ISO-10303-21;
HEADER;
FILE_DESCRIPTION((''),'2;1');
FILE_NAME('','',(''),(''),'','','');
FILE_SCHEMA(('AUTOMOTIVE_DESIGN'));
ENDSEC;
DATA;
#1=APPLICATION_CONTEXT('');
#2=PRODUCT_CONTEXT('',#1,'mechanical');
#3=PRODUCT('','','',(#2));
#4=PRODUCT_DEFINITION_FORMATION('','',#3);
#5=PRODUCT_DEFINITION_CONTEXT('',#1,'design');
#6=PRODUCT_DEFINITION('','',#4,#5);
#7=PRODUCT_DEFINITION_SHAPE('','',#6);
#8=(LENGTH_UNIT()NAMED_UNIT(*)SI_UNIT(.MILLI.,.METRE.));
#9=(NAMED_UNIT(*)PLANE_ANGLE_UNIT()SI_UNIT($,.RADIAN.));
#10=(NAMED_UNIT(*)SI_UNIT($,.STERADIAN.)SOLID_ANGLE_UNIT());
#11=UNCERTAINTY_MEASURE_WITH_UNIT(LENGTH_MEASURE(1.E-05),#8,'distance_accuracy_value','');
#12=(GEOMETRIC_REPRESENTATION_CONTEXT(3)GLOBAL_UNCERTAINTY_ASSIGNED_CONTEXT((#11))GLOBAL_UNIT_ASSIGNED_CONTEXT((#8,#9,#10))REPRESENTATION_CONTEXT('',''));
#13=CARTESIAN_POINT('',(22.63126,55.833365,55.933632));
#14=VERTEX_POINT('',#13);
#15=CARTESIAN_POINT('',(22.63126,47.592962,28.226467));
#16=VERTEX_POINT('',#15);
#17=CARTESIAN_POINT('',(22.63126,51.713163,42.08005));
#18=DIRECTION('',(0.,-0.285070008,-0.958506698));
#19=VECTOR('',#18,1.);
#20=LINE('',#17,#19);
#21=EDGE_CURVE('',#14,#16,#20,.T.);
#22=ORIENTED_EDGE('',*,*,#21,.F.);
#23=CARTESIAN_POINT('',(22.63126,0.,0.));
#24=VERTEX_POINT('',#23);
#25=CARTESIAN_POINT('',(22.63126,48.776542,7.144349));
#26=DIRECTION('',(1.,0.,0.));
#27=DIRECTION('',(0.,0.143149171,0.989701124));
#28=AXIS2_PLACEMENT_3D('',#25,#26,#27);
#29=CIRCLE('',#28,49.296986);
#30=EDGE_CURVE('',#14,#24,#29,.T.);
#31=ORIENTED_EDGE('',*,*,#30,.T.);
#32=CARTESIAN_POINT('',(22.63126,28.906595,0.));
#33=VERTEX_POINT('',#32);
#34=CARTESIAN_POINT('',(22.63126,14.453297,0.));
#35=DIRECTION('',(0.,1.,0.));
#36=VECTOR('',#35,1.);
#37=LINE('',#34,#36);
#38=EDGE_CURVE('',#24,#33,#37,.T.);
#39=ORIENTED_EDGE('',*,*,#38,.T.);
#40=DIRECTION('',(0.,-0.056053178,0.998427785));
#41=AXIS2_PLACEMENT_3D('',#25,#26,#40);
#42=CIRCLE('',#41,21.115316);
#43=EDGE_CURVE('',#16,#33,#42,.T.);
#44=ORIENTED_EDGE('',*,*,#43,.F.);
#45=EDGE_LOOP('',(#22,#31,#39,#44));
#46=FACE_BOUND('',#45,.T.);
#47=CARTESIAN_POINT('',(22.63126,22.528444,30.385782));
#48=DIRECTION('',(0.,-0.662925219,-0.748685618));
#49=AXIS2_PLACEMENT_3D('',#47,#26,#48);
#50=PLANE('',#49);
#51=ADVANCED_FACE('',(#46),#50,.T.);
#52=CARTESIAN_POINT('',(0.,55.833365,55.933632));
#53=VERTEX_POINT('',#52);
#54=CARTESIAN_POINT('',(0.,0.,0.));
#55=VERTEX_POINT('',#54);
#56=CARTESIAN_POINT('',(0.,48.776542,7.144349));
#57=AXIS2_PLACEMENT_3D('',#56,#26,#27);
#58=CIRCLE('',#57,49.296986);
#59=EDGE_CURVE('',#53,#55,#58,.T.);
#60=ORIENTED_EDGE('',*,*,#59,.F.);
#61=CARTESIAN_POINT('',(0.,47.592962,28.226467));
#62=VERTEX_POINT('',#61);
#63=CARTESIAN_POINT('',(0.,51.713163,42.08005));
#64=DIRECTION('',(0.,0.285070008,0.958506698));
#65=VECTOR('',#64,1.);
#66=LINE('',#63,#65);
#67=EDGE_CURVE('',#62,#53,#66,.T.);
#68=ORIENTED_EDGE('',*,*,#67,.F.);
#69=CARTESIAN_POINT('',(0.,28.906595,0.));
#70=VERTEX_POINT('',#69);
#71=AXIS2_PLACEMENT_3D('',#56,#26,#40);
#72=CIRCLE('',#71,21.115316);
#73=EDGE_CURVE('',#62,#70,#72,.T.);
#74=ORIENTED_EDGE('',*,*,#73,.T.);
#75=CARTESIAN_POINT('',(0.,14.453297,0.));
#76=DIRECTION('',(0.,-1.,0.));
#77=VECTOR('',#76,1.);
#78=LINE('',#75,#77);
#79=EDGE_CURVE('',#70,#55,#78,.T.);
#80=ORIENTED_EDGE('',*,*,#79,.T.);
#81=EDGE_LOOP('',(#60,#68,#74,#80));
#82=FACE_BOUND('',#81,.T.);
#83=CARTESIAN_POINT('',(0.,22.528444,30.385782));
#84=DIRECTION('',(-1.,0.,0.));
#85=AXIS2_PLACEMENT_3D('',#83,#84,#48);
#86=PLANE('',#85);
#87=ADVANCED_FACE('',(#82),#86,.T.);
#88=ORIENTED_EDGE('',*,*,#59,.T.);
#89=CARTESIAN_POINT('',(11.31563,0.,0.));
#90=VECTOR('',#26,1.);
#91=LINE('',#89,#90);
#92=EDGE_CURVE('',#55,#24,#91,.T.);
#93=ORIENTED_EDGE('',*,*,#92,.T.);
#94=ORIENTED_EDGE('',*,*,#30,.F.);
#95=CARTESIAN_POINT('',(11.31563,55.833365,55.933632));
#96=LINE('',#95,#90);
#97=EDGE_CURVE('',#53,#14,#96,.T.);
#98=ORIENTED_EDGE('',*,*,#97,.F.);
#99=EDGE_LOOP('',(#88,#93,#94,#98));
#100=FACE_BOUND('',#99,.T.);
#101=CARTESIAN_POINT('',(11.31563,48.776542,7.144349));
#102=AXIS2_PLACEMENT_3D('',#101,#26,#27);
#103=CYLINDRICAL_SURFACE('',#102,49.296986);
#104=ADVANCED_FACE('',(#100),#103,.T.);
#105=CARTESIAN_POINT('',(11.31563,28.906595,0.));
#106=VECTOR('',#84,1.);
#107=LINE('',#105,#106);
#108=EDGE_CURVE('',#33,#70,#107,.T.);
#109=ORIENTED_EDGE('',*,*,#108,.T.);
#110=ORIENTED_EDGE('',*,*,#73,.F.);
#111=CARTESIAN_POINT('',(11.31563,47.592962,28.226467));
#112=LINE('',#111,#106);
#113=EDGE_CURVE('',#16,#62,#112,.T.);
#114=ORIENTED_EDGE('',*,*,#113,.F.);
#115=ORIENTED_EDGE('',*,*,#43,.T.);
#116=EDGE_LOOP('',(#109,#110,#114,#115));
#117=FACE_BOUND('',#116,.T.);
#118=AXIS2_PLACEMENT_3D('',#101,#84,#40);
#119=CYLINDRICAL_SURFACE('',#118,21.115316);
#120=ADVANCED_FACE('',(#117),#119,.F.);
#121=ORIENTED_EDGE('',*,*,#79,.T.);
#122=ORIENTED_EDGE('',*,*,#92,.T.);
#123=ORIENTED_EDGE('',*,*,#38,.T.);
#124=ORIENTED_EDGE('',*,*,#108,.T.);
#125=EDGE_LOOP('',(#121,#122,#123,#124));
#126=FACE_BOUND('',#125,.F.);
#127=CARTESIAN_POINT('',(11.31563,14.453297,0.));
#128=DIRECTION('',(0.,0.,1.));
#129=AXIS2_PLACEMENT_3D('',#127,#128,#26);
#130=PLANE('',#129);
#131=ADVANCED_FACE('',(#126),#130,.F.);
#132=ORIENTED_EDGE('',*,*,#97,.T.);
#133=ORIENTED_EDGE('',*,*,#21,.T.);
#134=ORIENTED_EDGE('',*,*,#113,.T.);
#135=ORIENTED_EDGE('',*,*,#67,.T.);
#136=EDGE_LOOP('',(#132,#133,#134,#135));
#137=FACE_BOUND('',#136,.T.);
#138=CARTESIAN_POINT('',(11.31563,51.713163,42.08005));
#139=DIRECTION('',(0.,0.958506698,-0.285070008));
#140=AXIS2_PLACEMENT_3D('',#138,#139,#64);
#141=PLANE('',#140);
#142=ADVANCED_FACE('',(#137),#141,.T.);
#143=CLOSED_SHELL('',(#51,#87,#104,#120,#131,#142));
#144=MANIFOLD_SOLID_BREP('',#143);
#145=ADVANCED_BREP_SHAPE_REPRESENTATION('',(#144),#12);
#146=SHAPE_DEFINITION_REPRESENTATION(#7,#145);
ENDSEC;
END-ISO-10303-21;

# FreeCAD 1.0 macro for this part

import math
import FreeCAD as App
import Part
import Sketcher
from FreeCAD import Vector


def add_polygon(sketch, points):
    """Adds a closed chain of lines whose ends are joined by coincident constraints."""
    first, n = sketch.GeometryCount, len(points)
    for a, b in zip(points, points[1:] + points[:1]):
        sketch.addGeometry(Part.LineSegment(App.Vector(*a, 0), App.Vector(*b, 0)), False)
    for i in range(n):
        sketch.addConstraint(Sketcher.Constraint("Coincident", first + i, 2, first + (i + 1) % n, 1))

doc = App.newDocument("Part")
body = doc.addObject("PartDesign::Body", "Body")

# Sketch on XY plane
sketch1 = doc.addObject("Sketcher::SketchObject", "Sketch")
body.addObject(sketch1)
sketch1.AttachmentSupport = (doc.XY_Plane, [""])
sketch1.MapMode = "FlatFace"
add_polygon(sketch1, [(0, 29), (0, 0), (23, 0), (23, 29)])  # lines 0-3
sketch1.addConstraint(Sketcher.Constraint("Vertical", 0))
sketch1.addConstraint(Sketcher.Constraint("Horizontal", 1))
sketch1.addConstraint(Sketcher.Constraint("Vertical", 2))
sketch1.addConstraint(Sketcher.Constraint("Horizontal", 3))
sketch1.addConstraint(Sketcher.Constraint("Coincident", 0, 2, -1, 1))
sketch1.addConstraint(Sketcher.Constraint("DistanceX", 1, 1, 1, 2, 22.631261))
sketch1.addConstraint(Sketcher.Constraint("DistanceY", 0, 2, 0, 1, 28.906595))

# Sketch on YZ plane
sketch2 = doc.addObject("Sketcher::SketchObject", "Sketch001")
body.addObject(sketch2)
sketch2.AttachmentSupport = (doc.YZ_Plane, [""])
sketch2.MapMode = "FlatFace"
sketch2.addGeometry(Part.ArcOfCircle(Part.Circle(Vector(49, 7, 0), Vector(0, 0, 1), 28), math.radians(88), math.radians(195)), False)
sketch2.addConstraint(Sketcher.Constraint("PointOnObject", 0, 2, -1))
sketch2.addConstraint(Sketcher.Constraint("Radius", 0, 27.79778))
sketch2.addConstraint(Sketcher.Constraint("DistanceY", -1, 1, 0, 3, 7.144349))
sketch2.addConstraint(Sketcher.Constraint("DistanceY", -1, 1, 0, 1, 34.930319))
sketch2.addConstraint(Sketcher.Constraint("DistanceX", -1, 1, 0, 3, 48.776542))
doc.recompute()

additivepipe = doc.addObject("PartDesign::AdditivePipe", "AdditivePipe")
body.addObject(additivepipe)
additivepipe.Profile = sketch1
additivepipe.Spine = (sketch2, ["Edge1"])

doc.recompute()
